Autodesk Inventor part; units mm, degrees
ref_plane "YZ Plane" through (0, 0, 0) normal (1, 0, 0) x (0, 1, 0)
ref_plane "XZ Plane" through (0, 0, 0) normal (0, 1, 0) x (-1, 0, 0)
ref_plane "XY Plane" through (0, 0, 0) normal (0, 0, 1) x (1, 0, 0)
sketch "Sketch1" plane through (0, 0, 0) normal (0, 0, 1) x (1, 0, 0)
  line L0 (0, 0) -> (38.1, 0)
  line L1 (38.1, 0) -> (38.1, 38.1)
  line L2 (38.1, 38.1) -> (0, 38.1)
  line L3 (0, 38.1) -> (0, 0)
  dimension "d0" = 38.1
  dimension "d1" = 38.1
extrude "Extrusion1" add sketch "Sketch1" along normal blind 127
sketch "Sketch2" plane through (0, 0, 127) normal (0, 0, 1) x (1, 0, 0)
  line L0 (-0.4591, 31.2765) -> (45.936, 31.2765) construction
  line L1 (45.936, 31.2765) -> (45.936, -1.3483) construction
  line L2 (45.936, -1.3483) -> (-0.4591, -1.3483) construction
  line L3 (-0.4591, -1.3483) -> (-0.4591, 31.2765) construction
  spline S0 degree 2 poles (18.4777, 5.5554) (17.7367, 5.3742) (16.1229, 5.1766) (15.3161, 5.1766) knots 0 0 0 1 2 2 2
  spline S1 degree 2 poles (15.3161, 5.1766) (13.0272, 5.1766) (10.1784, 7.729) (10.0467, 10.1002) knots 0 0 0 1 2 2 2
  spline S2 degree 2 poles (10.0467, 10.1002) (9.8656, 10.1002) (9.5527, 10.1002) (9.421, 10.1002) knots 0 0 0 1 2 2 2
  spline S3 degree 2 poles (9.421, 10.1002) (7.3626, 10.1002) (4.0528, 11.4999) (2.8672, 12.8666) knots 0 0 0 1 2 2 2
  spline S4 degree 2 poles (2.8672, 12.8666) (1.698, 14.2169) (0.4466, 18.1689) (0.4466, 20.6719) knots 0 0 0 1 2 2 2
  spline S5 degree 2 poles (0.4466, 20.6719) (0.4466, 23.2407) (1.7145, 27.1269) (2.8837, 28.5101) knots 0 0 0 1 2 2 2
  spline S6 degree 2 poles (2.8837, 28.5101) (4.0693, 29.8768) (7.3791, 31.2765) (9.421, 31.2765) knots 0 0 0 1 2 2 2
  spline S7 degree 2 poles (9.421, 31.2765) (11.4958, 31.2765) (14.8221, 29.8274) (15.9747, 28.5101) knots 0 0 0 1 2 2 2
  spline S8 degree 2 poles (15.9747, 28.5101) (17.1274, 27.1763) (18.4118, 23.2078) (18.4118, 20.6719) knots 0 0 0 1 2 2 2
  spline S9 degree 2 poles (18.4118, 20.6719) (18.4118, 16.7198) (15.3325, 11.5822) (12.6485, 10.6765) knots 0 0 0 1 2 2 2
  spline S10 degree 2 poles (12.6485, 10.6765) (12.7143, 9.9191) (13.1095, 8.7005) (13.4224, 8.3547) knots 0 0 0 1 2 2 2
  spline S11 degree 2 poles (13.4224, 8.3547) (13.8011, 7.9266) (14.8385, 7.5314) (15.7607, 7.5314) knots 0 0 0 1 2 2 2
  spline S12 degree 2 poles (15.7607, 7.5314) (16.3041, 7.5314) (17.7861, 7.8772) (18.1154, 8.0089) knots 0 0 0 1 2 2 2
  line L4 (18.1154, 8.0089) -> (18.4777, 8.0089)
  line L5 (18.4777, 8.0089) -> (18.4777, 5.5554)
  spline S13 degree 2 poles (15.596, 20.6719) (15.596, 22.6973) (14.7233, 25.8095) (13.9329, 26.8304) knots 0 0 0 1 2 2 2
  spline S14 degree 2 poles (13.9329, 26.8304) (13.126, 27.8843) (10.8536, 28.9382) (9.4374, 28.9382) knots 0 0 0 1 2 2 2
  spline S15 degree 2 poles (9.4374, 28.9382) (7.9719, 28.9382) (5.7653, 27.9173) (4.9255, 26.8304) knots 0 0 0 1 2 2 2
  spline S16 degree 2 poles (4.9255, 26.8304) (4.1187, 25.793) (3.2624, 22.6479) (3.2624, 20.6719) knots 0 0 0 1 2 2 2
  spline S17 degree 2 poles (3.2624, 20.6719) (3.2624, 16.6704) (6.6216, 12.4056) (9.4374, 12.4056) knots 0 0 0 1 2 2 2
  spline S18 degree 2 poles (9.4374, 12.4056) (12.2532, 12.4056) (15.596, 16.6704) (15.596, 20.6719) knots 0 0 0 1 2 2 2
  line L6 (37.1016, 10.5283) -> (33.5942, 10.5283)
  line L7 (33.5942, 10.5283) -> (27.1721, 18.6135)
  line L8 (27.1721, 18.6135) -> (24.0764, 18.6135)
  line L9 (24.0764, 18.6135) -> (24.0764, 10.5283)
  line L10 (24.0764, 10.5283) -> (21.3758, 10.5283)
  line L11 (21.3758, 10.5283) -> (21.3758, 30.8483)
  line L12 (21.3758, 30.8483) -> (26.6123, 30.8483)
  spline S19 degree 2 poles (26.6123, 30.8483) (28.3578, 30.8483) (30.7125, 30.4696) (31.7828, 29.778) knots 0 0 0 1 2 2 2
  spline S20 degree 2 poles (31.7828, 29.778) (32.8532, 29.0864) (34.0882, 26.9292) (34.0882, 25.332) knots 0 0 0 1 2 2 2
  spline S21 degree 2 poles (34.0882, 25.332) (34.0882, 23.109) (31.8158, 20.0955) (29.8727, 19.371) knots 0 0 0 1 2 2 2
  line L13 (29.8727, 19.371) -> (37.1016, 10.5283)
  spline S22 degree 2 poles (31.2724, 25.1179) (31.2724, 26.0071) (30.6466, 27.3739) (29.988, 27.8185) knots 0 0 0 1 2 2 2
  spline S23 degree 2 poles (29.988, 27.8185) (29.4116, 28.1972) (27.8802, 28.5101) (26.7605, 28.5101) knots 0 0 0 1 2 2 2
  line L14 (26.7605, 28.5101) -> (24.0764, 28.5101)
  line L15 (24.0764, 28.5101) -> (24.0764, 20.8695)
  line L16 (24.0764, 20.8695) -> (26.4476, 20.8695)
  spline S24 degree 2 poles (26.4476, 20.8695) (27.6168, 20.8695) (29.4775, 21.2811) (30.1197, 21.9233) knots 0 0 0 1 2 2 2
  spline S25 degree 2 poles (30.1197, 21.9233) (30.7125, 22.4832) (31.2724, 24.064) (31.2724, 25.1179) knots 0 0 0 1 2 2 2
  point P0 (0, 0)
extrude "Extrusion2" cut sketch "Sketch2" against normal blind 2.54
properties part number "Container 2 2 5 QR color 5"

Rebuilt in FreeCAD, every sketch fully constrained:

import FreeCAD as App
import Part
import Sketcher

V = App.Vector
Q = App.Units.Quantity

doc = App.newDocument("Part")
body = doc.addObject("PartDesign::Body", "Body")

# Sketch on XY plane
sketch1 = body.newObject("Sketcher::SketchObject", "Sketch")
sketch1.AttachmentSupport = (doc.getObject("XY_Plane"), [""])
sketch1.MapMode = "FlatFace"
sketch1.addGeometry([
    Part.LineSegment(V(0, 38, 0), V(0, 0, 0)),
    Part.LineSegment(V(0, 0, 0), V(38, 0, 0)),
    Part.LineSegment(V(38, 0, 0), V(38, 38, 0)),
    Part.LineSegment(V(38, 38, 0), V(0, 38, 0)),
], False)
sketch1.addConstraint([
    Sketcher.Constraint("Coincident", 0, 2, 1, 1),
    Sketcher.Constraint("Coincident", 1, 2, 2, 1),
    Sketcher.Constraint("Coincident", 2, 2, 3, 1),
    Sketcher.Constraint("Coincident", 3, 2, 0, 1),
    Sketcher.Constraint("Vertical", 0),
    Sketcher.Constraint("Horizontal", 1),
    Sketcher.Constraint("Vertical", 2),
    Sketcher.Constraint("Horizontal", 3),
    Sketcher.Constraint("Coincident", 0, 2, -1, 1),
    Sketcher.Constraint("Equal", 3, 0),
    Sketcher.Constraint("DistanceX", 1, 1, 1, 2, Q("1.5 in")),
])
pad1 = body.newObject("PartDesign::Pad", "Pad")
pad1.Profile = sketch1
pad1.Length = Q("5 in")

# Sketch on XY plane
sketch2 = body.newObject("Sketcher::SketchObject", "Sketch001")
sketch2.AttachmentSupport = (doc.getObject("XY_Plane"), [""])
sketch2.MapMode = "FlatFace"
sketch2.AttachmentOffset = App.Placement(V(0, 0, 5 * 25.4), App.Rotation())
sketch2.addGeometry([
    Part.BSplineCurve([V(18.4777, 5.5554, 0), V(17.7367, 5.3742, 0), V(16.1229, 5.1766, 0), V(15.3161, 5.1766, 0)], [3, 1, 3], [0, 1, 2], False, 2, [1, 1, 1, 1], False),  # 0
    Part.LineSegment(V(18.4777, 5.5554, 0), V(18.4777, 8.0089, 0)),  # 1
    Part.LineSegment(V(18.4777, 8.0089, 0), V(18.1154, 8.0089, 0)),  # 2
    Part.BSplineCurve([V(15.7607, 7.5314, 0), V(16.3041, 7.5314, 0), V(17.7861, 7.8772, 0), V(18.1154, 8.0089, 0)], [3, 1, 3], [0, 1, 2], False, 2, [1, 1, 1, 1], False),  # 3
    Part.BSplineCurve([V(13.4224, 8.3547, 0), V(13.8011, 7.9266, 0), V(14.8385, 7.5314, 0), V(15.7607, 7.5314, 0)], [3, 1, 3], [0, 1, 2], False, 2, [1, 1, 1, 1], False),  # 4
    Part.BSplineCurve([V(12.6485, 10.6765, 0), V(12.7143, 9.9191, 0), V(13.1095, 8.7005, 0), V(13.4224, 8.3547, 0)], [3, 1, 3], [0, 1, 2], False, 2, [1, 1, 1, 1], False),  # 5
    Part.BSplineCurve([V(18.4118, 20.6719, 0), V(18.4118, 16.7198, 0), V(15.3325, 11.5822, 0), V(12.6485, 10.6765, 0)], [3, 1, 3], [0, 1, 2], False, 2, [1, 1, 1, 1], False),  # 6
    Part.BSplineCurve([V(15.9747, 28.5101, 0), V(17.1274, 27.1763, 0), V(18.4118, 23.2078, 0), V(18.4118, 20.6719, 0)], [3, 1, 3], [0, 1, 2], False, 2, [1, 1, 1, 1], False),  # 7
    Part.BSplineCurve([V(9.421, 31.2765, 0), V(11.4958, 31.2765, 0), V(14.8221, 29.8274, 0), V(15.9747, 28.5101, 0)], [3, 1, 3], [0, 1, 2], False, 2, [1, 1, 1, 1], False),  # 8
    Part.BSplineCurve([V(2.8837, 28.5101, 0), V(4.0693, 29.8768, 0), V(7.3791, 31.2765, 0), V(9.421, 31.2765, 0)], [3, 1, 3], [0, 1, 2], False, 2, [1, 1, 1, 1], False),  # 9
    Part.BSplineCurve([V(0.4466, 20.6719, 0), V(0.4466, 23.2407, 0), V(1.7145, 27.1269, 0), V(2.8837, 28.5101, 0)], [3, 1, 3], [0, 1, 2], False, 2, [1, 1, 1, 1], False),  # 10
    Part.BSplineCurve([V(2.8672, 12.8666, 0), V(1.698, 14.2169, 0), V(0.4466, 18.1689, 0), V(0.4466, 20.6719, 0)], [3, 1, 3], [0, 1, 2], False, 2, [1, 1, 1, 1], False),  # 11
    Part.BSplineCurve([V(9.421, 10.1002, 0), V(7.3626, 10.1002, 0), V(4.0528, 11.4999, 0), V(2.8672, 12.8666, 0)], [3, 1, 3], [0, 1, 2], False, 2, [1, 1, 1, 1], False),  # 12
    Part.BSplineCurve([V(10.0467, 10.1002, 0), V(9.8656, 10.1002, 0), V(9.5527, 10.1002, 0), V(9.421, 10.1002, 0)], [3, 1, 3], [0, 1, 2], False, 2, [1, 1, 1, 1], False),  # 13
    Part.BSplineCurve([V(15.3161, 5.1766, 0), V(13.0272, 5.1766, 0), V(10.1784, 7.729, 0), V(10.0467, 10.1002, 0)], [3, 1, 3], [0, 1, 2], False, 2, [1, 1, 1, 1], False),  # 14
    Part.BSplineCurve([V(15.596, 20.6719, 0), V(15.596, 22.6973, 0), V(14.7233, 25.8095, 0), V(13.9329, 26.8304, 0)], [3, 1, 3], [0, 1, 2], False, 2, [1, 1, 1, 1], False),  # 15
    Part.BSplineCurve([V(9.4374, 12.4056, 0), V(12.2532, 12.4056, 0), V(15.596, 16.6704, 0), V(15.596, 20.6719, 0)], [3, 1, 3], [0, 1, 2], False, 2, [1, 1, 1, 1], False),  # 16
    Part.BSplineCurve([V(3.2624, 20.6719, 0), V(3.2624, 16.6704, 0), V(6.6216, 12.4056, 0), V(9.4374, 12.4056, 0)], [3, 1, 3], [0, 1, 2], False, 2, [1, 1, 1, 1], False),  # 17
    Part.BSplineCurve([V(4.9255, 26.8304, 0), V(4.1187, 25.793, 0), V(3.2624, 22.6479, 0), V(3.2624, 20.6719, 0)], [3, 1, 3], [0, 1, 2], False, 2, [1, 1, 1, 1], False),  # 18
    Part.BSplineCurve([V(9.4374, 28.9382, 0), V(7.9719, 28.9382, 0), V(5.7653, 27.9173, 0), V(4.9255, 26.8304, 0)], [3, 1, 3], [0, 1, 2], False, 2, [1, 1, 1, 1], False),  # 19
    Part.BSplineCurve([V(13.9329, 26.8304, 0), V(13.126, 27.8843, 0), V(10.8536, 28.9382, 0), V(9.4374, 28.9382, 0)], [3, 1, 3], [0, 1, 2], False, 2, [1, 1, 1, 1], False),  # 20
    Part.LineSegment(V(33.5942, 10.5283, 0), V(37.1016, 10.5283, 0)),  # 21
    Part.LineSegment(V(37.1016, 10.5283, 0), V(29.8727, 19.371, 0)),  # 22
    Part.BSplineCurve([V(34.0882, 25.332, 0), V(34.0882, 23.109, 0), V(31.8158, 20.0955, 0), V(29.8727, 19.371, 0)], [3, 1, 3], [0, 1, 2], False, 2, [1, 1, 1, 1], False),  # 23
    Part.BSplineCurve([V(31.7828, 29.778, 0), V(32.8532, 29.0864, 0), V(34.0882, 26.9292, 0), V(34.0882, 25.332, 0)], [3, 1, 3], [0, 1, 2], False, 2, [1, 1, 1, 1], False),  # 24
    Part.BSplineCurve([V(26.6123, 30.8483, 0), V(28.3578, 30.8483, 0), V(30.7125, 30.4696, 0), V(31.7828, 29.778, 0)], [3, 1, 3], [0, 1, 2], False, 2, [1, 1, 1, 1], False),  # 25
    Part.LineSegment(V(26.6123, 30.8483, 0), V(21.3758, 30.8483, 0)),  # 26
    Part.LineSegment(V(21.3758, 30.8483, 0), V(21.3758, 10.5283, 0)),  # 27
    Part.LineSegment(V(21.3758, 10.5283, 0), V(24.0764, 10.5283, 0)),  # 28
    Part.LineSegment(V(24.0764, 10.5283, 0), V(24.0764, 18.6135, 0)),  # 29
    Part.LineSegment(V(24.0764, 18.6135, 0), V(27.1721, 18.6135, 0)),  # 30
    Part.LineSegment(V(27.1721, 18.6135, 0), V(33.5942, 10.5283, 0)),  # 31
    Part.BSplineCurve([V(31.2724, 25.1179, 0), V(31.2724, 26.0071, 0), V(30.6466, 27.3739, 0), V(29.988, 27.8185, 0)], [3, 1, 3], [0, 1, 2], False, 2, [1, 1, 1, 1], False),  # 32
    Part.BSplineCurve([V(30.1197, 21.9233, 0), V(30.7125, 22.4832, 0), V(31.2724, 24.064, 0), V(31.2724, 25.1179, 0)], [3, 1, 3], [0, 1, 2], False, 2, [1, 1, 1, 1], False),  # 33
    Part.BSplineCurve([V(26.4476, 20.8695, 0), V(27.6168, 20.8695, 0), V(29.4775, 21.2811, 0), V(30.1197, 21.9233, 0)], [3, 1, 3], [0, 1, 2], False, 2, [1, 1, 1, 1], False),  # 34
    Part.LineSegment(V(26.4476, 20.8695, 0), V(24.0764, 20.8695, 0)),  # 35
    Part.LineSegment(V(24.0764, 20.8695, 0), V(24.0764, 28.5101, 0)),  # 36
    Part.LineSegment(V(24.0764, 28.5101, 0), V(26.7605, 28.5101, 0)),  # 37
    Part.BSplineCurve([V(29.988, 27.8185, 0), V(29.4116, 28.1972, 0), V(27.8802, 28.5101, 0), V(26.7605, 28.5101, 0)], [3, 1, 3], [0, 1, 2], False, 2, [1, 1, 1, 1], False),  # 38
], False)
sketch2.addConstraint([
    Sketcher.Constraint("Block", 0),
    Sketcher.Constraint("Block", 3),
    Sketcher.Constraint("Block", 4),
    Sketcher.Constraint("Block", 5),
    Sketcher.Constraint("Block", 6),
    Sketcher.Constraint("Block", 7),
    Sketcher.Constraint("Block", 8),
    Sketcher.Constraint("Block", 9),
    Sketcher.Constraint("Block", 10),
    Sketcher.Constraint("Block", 11),
    Sketcher.Constraint("Block", 12),
    Sketcher.Constraint("Block", 13),
    Sketcher.Constraint("Block", 14),
    Sketcher.Constraint("Block", 15),
    Sketcher.Constraint("Block", 16),
    Sketcher.Constraint("Block", 17),
    Sketcher.Constraint("Block", 18),
    Sketcher.Constraint("Block", 19),
    Sketcher.Constraint("Block", 20),
    Sketcher.Constraint("Block", 23),
    Sketcher.Constraint("Block", 24),
    Sketcher.Constraint("Block", 25),
    Sketcher.Constraint("Block", 32),
    Sketcher.Constraint("Block", 33),
    Sketcher.Constraint("Block", 34),
    Sketcher.Constraint("Block", 38),
    Sketcher.Constraint("Coincident", 0, 1, 1, 1),
    Sketcher.Constraint("Coincident", 1, 2, 2, 1),
    Sketcher.Constraint("Coincident", 2, 2, 3, 2),
    Sketcher.Constraint("Coincident", 21, 2, 22, 1),
    Sketcher.Constraint("Coincident", 22, 2, 23, 2),
    Sketcher.Constraint("Coincident", 25, 1, 26, 1),
    Sketcher.Constraint("Coincident", 26, 2, 27, 1),
    Sketcher.Constraint("Coincident", 27, 2, 28, 1),
    Sketcher.Constraint("Coincident", 28, 2, 29, 1),
    Sketcher.Constraint("Coincident", 29, 2, 30, 1),
    Sketcher.Constraint("Coincident", 30, 2, 31, 1),
    Sketcher.Constraint("Coincident", 31, 2, 21, 1),
    Sketcher.Constraint("Coincident", 34, 1, 35, 1),
    Sketcher.Constraint("Coincident", 35, 2, 36, 1),
    Sketcher.Constraint("Coincident", 36, 2, 37, 1),
    Sketcher.Constraint("Coincident", 37, 2, 38, 2),
    Sketcher.Constraint("Vertical", 1),
    Sketcher.Constraint("Horizontal", 2),
    Sketcher.Constraint("Horizontal", 21),
    Sketcher.Constraint("Horizontal", 26),
    Sketcher.Constraint("Vertical", 27),
    Sketcher.Constraint("Horizontal", 28),
    Sketcher.Constraint("Vertical", 29),
    Sketcher.Constraint("Horizontal", 30),
    Sketcher.Constraint("Horizontal", 35),
    Sketcher.Constraint("Vertical", 36),
    Sketcher.Constraint("Horizontal", 37),
    Sketcher.Constraint("Horizontal", 21, 2, 27, 2),
    Sketcher.Constraint("Vertical", 29, 2, 35, 2),
    Sketcher.Constraint("DistanceY", 27, 2, 27, 1, Q("0.8 in")),
    Sketcher.Constraint("Angle", 31, Q("-51.5398 deg")),
    Sketcher.Constraint("DistanceX", 26, 2, 37, 2, Q("0.212 in")),
    Sketcher.Constraint("Distance", 31, Q("0.4065 in")),
    Sketcher.Constraint("DistanceX", 21, 1, 21, 2, Q("3.5074 mm")),
    Sketcher.Constraint("DistanceX", 28, 1, 28, 2, Q("2.7006 mm")),
    Sketcher.Constraint("DistanceX", 30, 1, 30, 2, Q("3.0957 mm")),
])
pocket1 = body.newObject("PartDesign::Pocket", "Pocket")
pocket1.Profile = sketch2
pocket1.Length = Q("0.1 in")

doc.recompute()
